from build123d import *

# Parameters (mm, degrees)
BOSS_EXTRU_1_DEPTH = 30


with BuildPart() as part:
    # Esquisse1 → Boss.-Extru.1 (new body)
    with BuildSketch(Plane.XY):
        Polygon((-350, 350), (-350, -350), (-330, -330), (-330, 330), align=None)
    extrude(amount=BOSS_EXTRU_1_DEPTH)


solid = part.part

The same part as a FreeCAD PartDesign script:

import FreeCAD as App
import Part
import Sketcher

doc = App.newDocument("Part")
params = doc.addObject("Spreadsheet::Sheet", "Params")
for row, (alias, value) in enumerate([
    ("sketch1_height", "700 mm"),
    ("sketch1_height2", "660 mm"),
    ("pad1_length", "30 mm"),
], start=1):
    params.set(f"A{row}", alias)
    params.set(f"B{row}", "=" + value)
    params.setAlias(f"B{row}", alias)

body = doc.addObject("PartDesign::Body", "Body")

# Sketch on XY plane
sketch1 = body.newObject("Sketcher::SketchObject", "Sketch")
sketch1.AttachmentSupport = (doc.getObject("XY_Plane"), [""])
sketch1.MapMode = "FlatFace"
sketch1.addGeometry([
    Part.LineSegment(App.Vector(-350, 350, 0), App.Vector(-350, -350, 0)),
    Part.LineSegment(App.Vector(-350, -350, 0), App.Vector(-330, -330, 0)),
    Part.LineSegment(App.Vector(-330, -330, 0), App.Vector(-330, 330, 0)),
    Part.LineSegment(App.Vector(-330, 330, 0), App.Vector(-350, 350, 0)),
], False)
sketch1.addConstraint([
    Sketcher.Constraint("Coincident", 0, 2, 1, 1),
    Sketcher.Constraint("Coincident", 1, 2, 2, 1),
    Sketcher.Constraint("Coincident", 2, 2, 3, 1),
    Sketcher.Constraint("Coincident", 3, 2, 0, 1),
    Sketcher.Constraint("Vertical", 0),
    Sketcher.Constraint("Vertical", 2),
    Sketcher.Constraint("Perpendicular", 1, 3),
    Sketcher.Constraint("Equal", 1, 3),
    Sketcher.Constraint("DistanceY", 0, 2, 0, 1, 700.0),
    Sketcher.Constraint("DistanceY", 2, 1, 2, 2, 660.0),
    Sketcher.Constraint("DistanceX", 0, 2, -1, 1, 350.0),
    Sketcher.Constraint("DistanceY", 0, 2, -1, 1, 350.0),
])
sketch1.setExpression("Constraints[8]", "Params.sketch1_height")
sketch1.setExpression("Constraints[9]", "Params.sketch1_height2")
pad1 = body.newObject("PartDesign::Pad", "Pad")
pad1.Profile = sketch1
pad1.setExpression("Length", "Params.pad1_length")

doc.recompute()
